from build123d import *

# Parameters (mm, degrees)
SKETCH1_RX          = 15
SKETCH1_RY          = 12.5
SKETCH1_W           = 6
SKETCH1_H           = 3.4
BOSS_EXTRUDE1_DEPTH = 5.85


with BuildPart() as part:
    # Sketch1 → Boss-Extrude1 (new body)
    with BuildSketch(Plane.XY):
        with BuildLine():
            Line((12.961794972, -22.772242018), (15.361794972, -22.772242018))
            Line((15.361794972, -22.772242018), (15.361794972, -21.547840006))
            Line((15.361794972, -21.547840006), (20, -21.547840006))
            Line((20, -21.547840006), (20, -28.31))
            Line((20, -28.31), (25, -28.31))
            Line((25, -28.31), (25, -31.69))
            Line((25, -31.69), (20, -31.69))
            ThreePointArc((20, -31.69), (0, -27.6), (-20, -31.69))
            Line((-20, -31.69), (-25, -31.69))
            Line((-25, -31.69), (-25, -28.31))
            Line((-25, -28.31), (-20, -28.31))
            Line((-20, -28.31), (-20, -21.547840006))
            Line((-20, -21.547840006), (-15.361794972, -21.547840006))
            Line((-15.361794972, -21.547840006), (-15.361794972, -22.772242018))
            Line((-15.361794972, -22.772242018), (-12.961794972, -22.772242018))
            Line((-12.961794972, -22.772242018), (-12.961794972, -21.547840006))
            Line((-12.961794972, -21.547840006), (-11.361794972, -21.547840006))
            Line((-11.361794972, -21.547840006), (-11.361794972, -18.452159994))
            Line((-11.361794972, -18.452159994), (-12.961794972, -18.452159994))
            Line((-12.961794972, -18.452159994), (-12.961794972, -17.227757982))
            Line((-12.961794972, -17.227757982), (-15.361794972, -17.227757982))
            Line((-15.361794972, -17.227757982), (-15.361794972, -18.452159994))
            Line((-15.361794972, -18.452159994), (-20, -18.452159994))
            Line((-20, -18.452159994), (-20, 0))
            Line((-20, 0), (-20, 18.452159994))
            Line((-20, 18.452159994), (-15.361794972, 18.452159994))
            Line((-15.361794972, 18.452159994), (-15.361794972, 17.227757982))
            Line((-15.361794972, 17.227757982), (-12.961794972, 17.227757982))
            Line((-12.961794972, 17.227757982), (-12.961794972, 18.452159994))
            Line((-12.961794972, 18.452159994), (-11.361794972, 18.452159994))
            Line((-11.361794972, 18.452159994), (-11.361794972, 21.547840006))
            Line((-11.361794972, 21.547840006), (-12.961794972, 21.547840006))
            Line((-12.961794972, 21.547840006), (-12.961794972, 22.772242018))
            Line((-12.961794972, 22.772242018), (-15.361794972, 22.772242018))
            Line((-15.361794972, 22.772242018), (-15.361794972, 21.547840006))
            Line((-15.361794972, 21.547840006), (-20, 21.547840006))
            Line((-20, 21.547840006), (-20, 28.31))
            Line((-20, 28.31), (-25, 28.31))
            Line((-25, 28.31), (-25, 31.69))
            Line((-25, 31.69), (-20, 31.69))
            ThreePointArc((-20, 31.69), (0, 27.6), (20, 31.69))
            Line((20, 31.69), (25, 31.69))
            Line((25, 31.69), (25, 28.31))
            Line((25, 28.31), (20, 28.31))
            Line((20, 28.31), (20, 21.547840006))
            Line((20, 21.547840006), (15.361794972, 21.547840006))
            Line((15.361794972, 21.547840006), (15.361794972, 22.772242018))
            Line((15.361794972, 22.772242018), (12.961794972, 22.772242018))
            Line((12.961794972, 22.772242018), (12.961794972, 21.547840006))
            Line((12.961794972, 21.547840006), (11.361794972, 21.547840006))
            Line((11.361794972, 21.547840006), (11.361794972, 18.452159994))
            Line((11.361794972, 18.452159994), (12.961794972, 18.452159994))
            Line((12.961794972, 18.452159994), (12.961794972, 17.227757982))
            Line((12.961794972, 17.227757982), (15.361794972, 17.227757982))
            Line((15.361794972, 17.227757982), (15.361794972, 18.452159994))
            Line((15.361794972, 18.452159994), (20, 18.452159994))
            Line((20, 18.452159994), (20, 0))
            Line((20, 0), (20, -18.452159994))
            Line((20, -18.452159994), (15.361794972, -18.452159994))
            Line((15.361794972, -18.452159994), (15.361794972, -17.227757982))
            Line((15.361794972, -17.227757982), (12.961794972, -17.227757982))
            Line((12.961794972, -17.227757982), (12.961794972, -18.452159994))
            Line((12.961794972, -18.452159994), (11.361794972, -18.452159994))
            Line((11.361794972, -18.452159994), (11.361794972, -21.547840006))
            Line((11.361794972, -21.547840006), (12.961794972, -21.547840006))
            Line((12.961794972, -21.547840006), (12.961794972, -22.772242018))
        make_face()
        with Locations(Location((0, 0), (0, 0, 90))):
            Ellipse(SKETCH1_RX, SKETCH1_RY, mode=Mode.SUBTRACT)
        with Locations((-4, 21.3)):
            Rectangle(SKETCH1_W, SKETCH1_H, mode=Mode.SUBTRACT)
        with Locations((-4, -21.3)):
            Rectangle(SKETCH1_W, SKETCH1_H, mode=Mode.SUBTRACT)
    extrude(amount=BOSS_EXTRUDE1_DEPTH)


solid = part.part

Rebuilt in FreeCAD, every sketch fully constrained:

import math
import FreeCAD as App
import Part
import Sketcher

V = App.Vector
Q = App.Units.Quantity


def add_polygon(sketch, points):
    """Adds a closed chain of lines whose ends are joined by coincident constraints."""
    first, n = sketch.GeometryCount, len(points)
    for a, b in zip(points, points[1:] + points[:1]):
        sketch.addGeometry(Part.LineSegment(App.Vector(*a, 0), App.Vector(*b, 0)), False)
    for i in range(n):
        sketch.addConstraint(Sketcher.Constraint("Coincident", first + i, 2, first + (i + 1) % n, 1))

doc = App.newDocument("Part")
params = doc.addObject("Spreadsheet::Sheet", "Params")
for row, (alias, value) in enumerate([
    ("sketch1_width", "5 mm"),
    ("sketch1_width2", "6 mm"),
    ("sketch1_width3", "2.4 mm"),
    ("sketch1_width4", "1.6 mm"),
    ("sketch1_height", "3.4 mm"),
    ("pad1_length", "5.85 mm"),
], start=1):
    params.set(f"A{row}", alias)
    params.set(f"B{row}", "=" + value)
    params.setAlias(f"B{row}", alias)

body = doc.addObject("PartDesign::Body", "Body")

# Sketch on XY plane
sketch1 = body.newObject("Sketcher::SketchObject", "Sketch")
sketch1.AttachmentSupport = (doc.getObject("XY_Plane"), [""])
sketch1.MapMode = "FlatFace"
sketch1.addGeometry(Part.LineSegment(V(15.361795, -22.772242, 0), V(12.961795, -22.772242, 0)), False)  # 0
sketch1.addGeometry(Part.LineSegment(V(12.961795, -22.772242, 0), V(12.961795, -21.54784, 0)), False)  # 1
sketch1.addGeometry(Part.LineSegment(V(12.961795, -21.54784, 0), V(11.361795, -21.54784, 0)), False)  # 2
sketch1.addGeometry(Part.LineSegment(V(11.361795, -21.54784, 0), V(11.361795, -18.45216, 0)), False)  # 3
sketch1.addGeometry(Part.LineSegment(V(11.361795, -18.45216, 0), V(12.961795, -18.45216, 0)), False)  # 4
sketch1.addGeometry(Part.LineSegment(V(12.961795, -18.45216, 0), V(12.961795, -17.227758, 0)), False)  # 5
sketch1.addGeometry(Part.LineSegment(V(12.961795, -17.227758, 0), V(15.361795, -17.227758, 0)), False)  # 6
sketch1.addGeometry(Part.LineSegment(V(15.361795, -17.227758, 0), V(15.361795, -18.45216, 0)), False)  # 7
sketch1.addGeometry(Part.LineSegment(V(15.361795, -18.45216, 0), V(20, -18.45216, 0)), False)  # 8
sketch1.addGeometry(Part.LineSegment(V(20, -18.45216, 0), V(20, 18.45216, 0)), False)  # 9
sketch1.addGeometry(Part.LineSegment(V(20, 18.45216, 0), V(15.361795, 18.45216, 0)), False)  # 10
sketch1.addGeometry(Part.LineSegment(V(15.361795, 18.45216, 0), V(15.361795, 17.227758, 0)), False)  # 11
sketch1.addGeometry(Part.LineSegment(V(15.361795, 17.227758, 0), V(12.961795, 17.227758, 0)), False)  # 12
sketch1.addGeometry(Part.LineSegment(V(12.961795, 17.227758, 0), V(12.961795, 18.45216, 0)), False)  # 13
sketch1.addGeometry(Part.LineSegment(V(12.961795, 18.45216, 0), V(11.361795, 18.45216, 0)), False)  # 14
sketch1.addGeometry(Part.LineSegment(V(11.361795, 18.45216, 0), V(11.361795, 21.54784, 0)), False)  # 15
sketch1.addGeometry(Part.LineSegment(V(11.361795, 21.54784, 0), V(12.961795, 21.54784, 0)), False)  # 16
sketch1.addGeometry(Part.LineSegment(V(12.961795, 21.54784, 0), V(12.961795, 22.772242, 0)), False)  # 17
sketch1.addGeometry(Part.LineSegment(V(12.961795, 22.772242, 0), V(15.361795, 22.772242, 0)), False)  # 18
sketch1.addGeometry(Part.LineSegment(V(15.361795, 22.772242, 0), V(15.361795, 21.54784, 0)), False)  # 19
sketch1.addGeometry(Part.LineSegment(V(15.361795, 21.54784, 0), V(20, 21.54784, 0)), False)  # 20
sketch1.addGeometry(Part.LineSegment(V(20, 21.54784, 0), V(20, 28.31, 0)), False)  # 21
sketch1.addGeometry(Part.LineSegment(V(20, 28.31, 0), V(25, 28.31, 0)), False)  # 22
sketch1.addGeometry(Part.LineSegment(V(25, 28.31, 0), V(25, 31.69, 0)), False)  # 23
sketch1.addGeometry(Part.LineSegment(V(25, 31.69, 0), V(20, 31.69, 0)), False)  # 24
sketch1.addGeometry(Part.ArcOfCircle(Part.Circle(V(0, 78.544756, 0), V(0, 0, 1), 50.944756), math.radians(-113.115262), math.radians(-66.884738)), False)  # 25
sketch1.addGeometry(Part.LineSegment(V(-20, 31.69, 0), V(-25, 31.69, 0)), False)  # 26
sketch1.addGeometry(Part.LineSegment(V(-25, 31.69, 0), V(-25, 28.31, 0)), False)  # 27
sketch1.addGeometry(Part.LineSegment(V(-25, 28.31, 0), V(-20, 28.31, 0)), False)  # 28
sketch1.addGeometry(Part.LineSegment(V(-20, 28.31, 0), V(-20, 21.54784, 0)), False)  # 29
sketch1.addGeometry(Part.LineSegment(V(-20, 21.54784, 0), V(-15.361795, 21.54784, 0)), False)  # 30
sketch1.addGeometry(Part.LineSegment(V(-15.361795, 21.54784, 0), V(-15.361795, 22.772242, 0)), False)  # 31
sketch1.addGeometry(Part.LineSegment(V(-15.361795, 22.772242, 0), V(-12.961795, 22.772242, 0)), False)  # 32
sketch1.addGeometry(Part.LineSegment(V(-12.961795, 22.772242, 0), V(-12.961795, 21.54784, 0)), False)  # 33
sketch1.addGeometry(Part.LineSegment(V(-12.961795, 21.54784, 0), V(-11.361795, 21.54784, 0)), False)  # 34
sketch1.addGeometry(Part.LineSegment(V(-11.361795, 21.54784, 0), V(-11.361795, 18.45216, 0)), False)  # 35
sketch1.addGeometry(Part.LineSegment(V(-11.361795, 18.45216, 0), V(-12.961795, 18.45216, 0)), False)  # 36
sketch1.addGeometry(Part.LineSegment(V(-12.961795, 18.45216, 0), V(-12.961795, 17.227758, 0)), False)  # 37
sketch1.addGeometry(Part.LineSegment(V(-12.961795, 17.227758, 0), V(-15.361795, 17.227758, 0)), False)  # 38
sketch1.addGeometry(Part.LineSegment(V(-15.361795, 17.227758, 0), V(-15.361795, 18.45216, 0)), False)  # 39
sketch1.addGeometry(Part.LineSegment(V(-15.361795, 18.45216, 0), V(-20, 18.45216, 0)), False)  # 40
sketch1.addGeometry(Part.LineSegment(V(-20, 18.45216, 0), V(-20, -18.45216, 0)), False)  # 41
sketch1.addGeometry(Part.LineSegment(V(-20, -18.45216, 0), V(-15.361795, -18.45216, 0)), False)  # 42
sketch1.addGeometry(Part.LineSegment(V(-15.361795, -18.45216, 0), V(-15.361795, -17.227758, 0)), False)  # 43
sketch1.addGeometry(Part.LineSegment(V(-15.361795, -17.227758, 0), V(-12.961795, -17.227758, 0)), False)  # 44
sketch1.addGeometry(Part.LineSegment(V(-12.961795, -17.227758, 0), V(-12.961795, -18.45216, 0)), False)  # 45
sketch1.addGeometry(Part.LineSegment(V(-12.961795, -18.45216, 0), V(-11.361795, -18.45216, 0)), False)  # 46
sketch1.addGeometry(Part.LineSegment(V(-11.361795, -18.45216, 0), V(-11.361795, -21.54784, 0)), False)  # 47
sketch1.addGeometry(Part.LineSegment(V(-11.361795, -21.54784, 0), V(-12.961795, -21.54784, 0)), False)  # 48
sketch1.addGeometry(Part.LineSegment(V(-12.961795, -21.54784, 0), V(-12.961795, -22.772242, 0)), False)  # 49
sketch1.addGeometry(Part.LineSegment(V(-12.961795, -22.772242, 0), V(-15.361795, -22.772242, 0)), False)  # 50
sketch1.addGeometry(Part.LineSegment(V(-15.361795, -22.772242, 0), V(-15.361795, -21.54784, 0)), False)  # 51
sketch1.addGeometry(Part.LineSegment(V(-15.361795, -21.54784, 0), V(-20, -21.54784, 0)), False)  # 52
sketch1.addGeometry(Part.LineSegment(V(-20, -21.54784, 0), V(-20, -28.31, 0)), False)  # 53
sketch1.addGeometry(Part.LineSegment(V(-20, -28.31, 0), V(-25, -28.31, 0)), False)  # 54
sketch1.addGeometry(Part.LineSegment(V(-25, -28.31, 0), V(-25, -31.69, 0)), False)  # 55
sketch1.addGeometry(Part.LineSegment(V(-25, -31.69, 0), V(-20, -31.69, 0)), False)  # 56
sketch1.addGeometry(Part.ArcOfCircle(Part.Circle(V(0, -78.544756, 0), V(0, 0, 1), 50.944756), math.radians(66.884738), math.radians(113.115262)), False)  # 57
sketch1.addGeometry(Part.LineSegment(V(20, -31.69, 0), V(25, -31.69, 0)), False)  # 58
sketch1.addGeometry(Part.LineSegment(V(25, -31.69, 0), V(25, -28.31, 0)), False)  # 59
sketch1.addGeometry(Part.LineSegment(V(25, -28.31, 0), V(20, -28.31, 0)), False)  # 60
sketch1.addGeometry(Part.LineSegment(V(20, -28.31, 0), V(20, -21.54784, 0)), False)  # 61
sketch1.addGeometry(Part.LineSegment(V(20, -21.54784, 0), V(15.361795, -21.54784, 0)), False)  # 62
sketch1.addGeometry(Part.LineSegment(V(15.361795, -21.54784, 0), V(15.361795, -22.772242, 0)), False)  # 63
add_polygon(sketch1, [(-7, -23), (-7, -19.6), (-1, -19.6), (-1, -23)])  # lines 64-67
sketch1.addGeometry(Part.Ellipse(V(0, 15, 0), V(-12.5, 0, 0), V(0, 0, 0)), False)  # 68
add_polygon(sketch1, [(-7, 19.6), (-7, 23), (-1, 23), (-1, 19.6)])  # lines 69-72
sketch1.addConstraint([
    Sketcher.Constraint("Block", 68),
    Sketcher.Constraint("Coincident", 0, 2, 1, 1),
    Sketcher.Constraint("Coincident", 1, 2, 2, 1),
    Sketcher.Constraint("Coincident", 2, 2, 3, 1),
    Sketcher.Constraint("Coincident", 3, 2, 4, 1),
    Sketcher.Constraint("Coincident", 4, 2, 5, 1),
    Sketcher.Constraint("Coincident", 5, 2, 6, 1),
    Sketcher.Constraint("Coincident", 6, 2, 7, 1),
    Sketcher.Constraint("Coincident", 7, 2, 8, 1),
    Sketcher.Constraint("Coincident", 8, 2, 9, 1),
    Sketcher.Constraint("Coincident", 9, 2, 10, 1),
    Sketcher.Constraint("Coincident", 10, 2, 11, 1),
    Sketcher.Constraint("Coincident", 11, 2, 12, 1),
    Sketcher.Constraint("Coincident", 12, 2, 13, 1),
    Sketcher.Constraint("Coincident", 13, 2, 14, 1),
    Sketcher.Constraint("Coincident", 14, 2, 15, 1),
    Sketcher.Constraint("Coincident", 15, 2, 16, 1),
    Sketcher.Constraint("Coincident", 16, 2, 17, 1),
    Sketcher.Constraint("Coincident", 17, 2, 18, 1),
    Sketcher.Constraint("Coincident", 18, 2, 19, 1),
    Sketcher.Constraint("Coincident", 19, 2, 20, 1),
    Sketcher.Constraint("Coincident", 20, 2, 21, 1),
    Sketcher.Constraint("Coincident", 21, 2, 22, 1),
    Sketcher.Constraint("Coincident", 22, 2, 23, 1),
    Sketcher.Constraint("Coincident", 23, 2, 24, 1),
    Sketcher.Constraint("Coincident", 24, 2, 25, 2),
    Sketcher.Constraint("Coincident", 25, 1, 26, 1),
    Sketcher.Constraint("Coincident", 26, 2, 27, 1),
    Sketcher.Constraint("Coincident", 27, 2, 28, 1),
    Sketcher.Constraint("Coincident", 28, 2, 29, 1),
    Sketcher.Constraint("Coincident", 29, 2, 30, 1),
    Sketcher.Constraint("Coincident", 30, 2, 31, 1),
    Sketcher.Constraint("Coincident", 31, 2, 32, 1),
    Sketcher.Constraint("Coincident", 32, 2, 33, 1),
    Sketcher.Constraint("Coincident", 33, 2, 34, 1),
    Sketcher.Constraint("Coincident", 34, 2, 35, 1),
    Sketcher.Constraint("Coincident", 35, 2, 36, 1),
    Sketcher.Constraint("Coincident", 36, 2, 37, 1),
    Sketcher.Constraint("Coincident", 37, 2, 38, 1),
    Sketcher.Constraint("Coincident", 38, 2, 39, 1),
    Sketcher.Constraint("Coincident", 39, 2, 40, 1),
    Sketcher.Constraint("Coincident", 40, 2, 41, 1),
    Sketcher.Constraint("Coincident", 41, 2, 42, 1),
    Sketcher.Constraint("Coincident", 42, 2, 43, 1),
    Sketcher.Constraint("Coincident", 43, 2, 44, 1),
    Sketcher.Constraint("Coincident", 44, 2, 45, 1),
    Sketcher.Constraint("Coincident", 45, 2, 46, 1),
    Sketcher.Constraint("Coincident", 46, 2, 47, 1),
    Sketcher.Constraint("Coincident", 47, 2, 48, 1),
    Sketcher.Constraint("Coincident", 48, 2, 49, 1),
    Sketcher.Constraint("Coincident", 49, 2, 50, 1),
    Sketcher.Constraint("Coincident", 50, 2, 51, 1),
    Sketcher.Constraint("Coincident", 51, 2, 52, 1),
    Sketcher.Constraint("Coincident", 52, 2, 53, 1),
    Sketcher.Constraint("Coincident", 53, 2, 54, 1),
    Sketcher.Constraint("Coincident", 54, 2, 55, 1),
    Sketcher.Constraint("Coincident", 55, 2, 56, 1),
    Sketcher.Constraint("Coincident", 56, 2, 57, 2),
    Sketcher.Constraint("Coincident", 57, 1, 58, 1),
    Sketcher.Constraint("Coincident", 58, 2, 59, 1),
    Sketcher.Constraint("Coincident", 59, 2, 60, 1),
    Sketcher.Constraint("Coincident", 60, 2, 61, 1),
    Sketcher.Constraint("Coincident", 61, 2, 62, 1),
    Sketcher.Constraint("Coincident", 62, 2, 63, 1),
    Sketcher.Constraint("Coincident", 63, 2, 0, 1),
    Sketcher.Constraint("Horizontal", 0),
    Sketcher.Constraint("Vertical", 1),
    Sketcher.Constraint("Horizontal", 2),
    Sketcher.Constraint("Vertical", 3),
    Sketcher.Constraint("Horizontal", 4),
    Sketcher.Constraint("Vertical", 5),
    Sketcher.Constraint("Horizontal", 6),
    Sketcher.Constraint("Vertical", 7),
    Sketcher.Constraint("Horizontal", 8),
    Sketcher.Constraint("Vertical", 9),
    Sketcher.Constraint("Horizontal", 10),
    Sketcher.Constraint("Vertical", 11),
    Sketcher.Constraint("Horizontal", 12),
    Sketcher.Constraint("Vertical", 13),
    Sketcher.Constraint("Horizontal", 14),
    Sketcher.Constraint("Vertical", 15),
    Sketcher.Constraint("Horizontal", 16),
    Sketcher.Constraint("Vertical", 17),
    Sketcher.Constraint("Horizontal", 18),
    Sketcher.Constraint("Vertical", 19),
    Sketcher.Constraint("Horizontal", 20),
    Sketcher.Constraint("Vertical", 21),
    Sketcher.Constraint("Horizontal", 22),
    Sketcher.Constraint("Vertical", 23),
    Sketcher.Constraint("Horizontal", 24),
    Sketcher.Constraint("Horizontal", 26),
    Sketcher.Constraint("Vertical", 27),
    Sketcher.Constraint("Horizontal", 28),
    Sketcher.Constraint("Vertical", 29),
    Sketcher.Constraint("Horizontal", 30),
    Sketcher.Constraint("Vertical", 31),
    Sketcher.Constraint("Horizontal", 32),
    Sketcher.Constraint("Vertical", 33),
    Sketcher.Constraint("Horizontal", 34),
    Sketcher.Constraint("Vertical", 35),
    Sketcher.Constraint("Horizontal", 36),
    Sketcher.Constraint("Vertical", 37),
    Sketcher.Constraint("Horizontal", 38),
    Sketcher.Constraint("Vertical", 39),
    Sketcher.Constraint("Horizontal", 40),
    Sketcher.Constraint("Vertical", 41),
    Sketcher.Constraint("Horizontal", 42),
    Sketcher.Constraint("Vertical", 43),
    Sketcher.Constraint("Horizontal", 44),
    Sketcher.Constraint("Vertical", 45),
    Sketcher.Constraint("Horizontal", 46),
    Sketcher.Constraint("Vertical", 47),
    Sketcher.Constraint("Horizontal", 48),
    Sketcher.Constraint("Vertical", 49),
    Sketcher.Constraint("Horizontal", 50),
    Sketcher.Constraint("Vertical", 51),
    Sketcher.Constraint("Horizontal", 52),
    Sketcher.Constraint("Vertical", 53),
    Sketcher.Constraint("Horizontal", 54),
    Sketcher.Constraint("Vertical", 55),
    Sketcher.Constraint("Horizontal", 56),
    Sketcher.Constraint("Horizontal", 58),
    Sketcher.Constraint("Vertical", 59),
    Sketcher.Constraint("Horizontal", 60),
    Sketcher.Constraint("Vertical", 61),
    Sketcher.Constraint("Horizontal", 62),
    Sketcher.Constraint("Vertical", 63),
    Sketcher.Constraint("Vertical", 64),
    Sketcher.Constraint("Horizontal", 65),
    Sketcher.Constraint("Vertical", 66),
    Sketcher.Constraint("Horizontal", 67),
    Sketcher.Constraint("Vertical", 69),
    Sketcher.Constraint("Horizontal", 70),
    Sketcher.Constraint("Vertical", 71),
    Sketcher.Constraint("Horizontal", 72),
    Sketcher.Constraint("Equal", 25, 57),
    Sketcher.Constraint("Symmetric", 25, 3, 57, 3, -1, 1),
    Sketcher.Constraint("Symmetric", 0, 2, 32, 2, -1, 1),
    Sketcher.Constraint("Symmetric", 2, 2, 34, 2, -1, 1),
    Sketcher.Constraint("Symmetric", 4, 2, 36, 2, -1, 1),
    Sketcher.Constraint("Symmetric", 6, 2, 38, 2, -1, 1),
    Sketcher.Constraint("Symmetric", 8, 2, 40, 2, -1, 1),
    Sketcher.Constraint("Symmetric", 10, 2, 42, 2, -1, 1),
    Sketcher.Constraint("Symmetric", 12, 2, 44, 2, -1, 1),
    Sketcher.Constraint("Symmetric", 14, 2, 46, 2, -1, 1),
    Sketcher.Constraint("Symmetric", 16, 2, 48, 2, -1, 1),
    Sketcher.Constraint("Symmetric", 18, 2, 50, 2, -1, 1),
    Sketcher.Constraint("Symmetric", 20, 2, 52, 2, -1, 1),
    Sketcher.Constraint("Symmetric", 22, 2, 54, 2, -1, 1),
    Sketcher.Constraint("Symmetric", 26, 2, 58, 2, -1, 1),
    Sketcher.Constraint("Symmetric", 28, 2, 60, 2, -1, 1),
    Sketcher.Constraint("Symmetric", 30, 2, 62, 2, -1, 1),
    Sketcher.Constraint("Symmetric", 24, 2, 25, 1, -2),
    Sketcher.Constraint("Symmetric", 22, 2, 27, 2, -2),
    Sketcher.Constraint("Symmetric", 20, 2, 29, 2, -2),
    Sketcher.Constraint("Symmetric", 18, 2, 31, 2, -2),
    Sketcher.Constraint("Symmetric", 16, 2, 33, 2, -2),
    Sketcher.Constraint("Symmetric", 14, 2, 35, 2, -2),
    Sketcher.Constraint("Symmetric", 12, 2, 37, 2, -2),
    Sketcher.Constraint("Symmetric", 10, 2, 39, 2, -2),
    Sketcher.Constraint("Symmetric", 67, 2, 69, 2, -1),
    Sketcher.Constraint("Symmetric", 65, 2, 71, 2, -1),
    Sketcher.Constraint("Horizontal", 4, 2, 7, 2),
    Sketcher.Constraint("Horizontal", 16, 2, 19, 2),
    Sketcher.Constraint("Horizontal", 56, 2, 57, 1),
    Sketcher.Constraint("Vertical", 1, 2, 4, 2),
    Sketcher.Constraint("Vertical", 11, 2, 18, 2),
    Sketcher.Constraint("Vertical", 9, 2, 20, 2),
    Sketcher.Constraint("Vertical", 21, 2, 24, 2),
    Sketcher.Constraint("Equal", 1, 5),
    Sketcher.Constraint("DistanceX", 22, 1, 22, 2, Q("5 mm")),
    Sketcher.Constraint("DistanceX", 65, 1, 65, 2, Q("6 mm")),
    Sketcher.Constraint("DistanceX", 0, 2, 0, 1, Q("2.4 mm")),
    Sketcher.Constraint("DistanceX", 2, 2, 2, 1, Q("1.6 mm")),
    Sketcher.Constraint("DistanceY", 64, 1, 64, 2, Q("3.4 mm")),
    Sketcher.Constraint("DistanceX", -1, 1, 8, 2, Q("20 mm")),
    Sketcher.Constraint("DistanceX", 64, 2, -1, 1, Q("7 mm")),
    Sketcher.Constraint("DistanceY", 66, 2, -1, 1, Q("23 mm")),
    Sketcher.Constraint("DistanceY", 23, 1, 23, 2, Q("3.38 mm")),
    Sketcher.Constraint("DistanceY", -1, 1, 21, 2, Q("28.31 mm")),
    Sketcher.Constraint("Radius", 25, Q("50.944756 mm")),
    Sketcher.Constraint("DistanceY", 3, 1, 3, 2, Q("3.09568 mm")),
    Sketcher.Constraint("DistanceY", 9, 1, 9, 2, Q("36.90432 mm")),
    Sketcher.Constraint("DistanceX", 8, 1, 8, 2, Q("4.638205 mm")),
    Sketcher.Constraint("DistanceY", 1, 1, 1, 2, Q("1.224402 mm")),
])
sketch1.setExpression("Constraints[178]", "Params.sketch1_width")
sketch1.setExpression("Constraints[179]", "Params.sketch1_width2")
sketch1.setExpression("Constraints[180]", "Params.sketch1_width3")
sketch1.setExpression("Constraints[181]", "Params.sketch1_width4")
sketch1.setExpression("Constraints[182]", "Params.sketch1_height")
pad1 = body.newObject("PartDesign::Pad", "Pad")
pad1.Profile = sketch1
pad1.setExpression("Length", "Params.pad1_length")

doc.recompute()
